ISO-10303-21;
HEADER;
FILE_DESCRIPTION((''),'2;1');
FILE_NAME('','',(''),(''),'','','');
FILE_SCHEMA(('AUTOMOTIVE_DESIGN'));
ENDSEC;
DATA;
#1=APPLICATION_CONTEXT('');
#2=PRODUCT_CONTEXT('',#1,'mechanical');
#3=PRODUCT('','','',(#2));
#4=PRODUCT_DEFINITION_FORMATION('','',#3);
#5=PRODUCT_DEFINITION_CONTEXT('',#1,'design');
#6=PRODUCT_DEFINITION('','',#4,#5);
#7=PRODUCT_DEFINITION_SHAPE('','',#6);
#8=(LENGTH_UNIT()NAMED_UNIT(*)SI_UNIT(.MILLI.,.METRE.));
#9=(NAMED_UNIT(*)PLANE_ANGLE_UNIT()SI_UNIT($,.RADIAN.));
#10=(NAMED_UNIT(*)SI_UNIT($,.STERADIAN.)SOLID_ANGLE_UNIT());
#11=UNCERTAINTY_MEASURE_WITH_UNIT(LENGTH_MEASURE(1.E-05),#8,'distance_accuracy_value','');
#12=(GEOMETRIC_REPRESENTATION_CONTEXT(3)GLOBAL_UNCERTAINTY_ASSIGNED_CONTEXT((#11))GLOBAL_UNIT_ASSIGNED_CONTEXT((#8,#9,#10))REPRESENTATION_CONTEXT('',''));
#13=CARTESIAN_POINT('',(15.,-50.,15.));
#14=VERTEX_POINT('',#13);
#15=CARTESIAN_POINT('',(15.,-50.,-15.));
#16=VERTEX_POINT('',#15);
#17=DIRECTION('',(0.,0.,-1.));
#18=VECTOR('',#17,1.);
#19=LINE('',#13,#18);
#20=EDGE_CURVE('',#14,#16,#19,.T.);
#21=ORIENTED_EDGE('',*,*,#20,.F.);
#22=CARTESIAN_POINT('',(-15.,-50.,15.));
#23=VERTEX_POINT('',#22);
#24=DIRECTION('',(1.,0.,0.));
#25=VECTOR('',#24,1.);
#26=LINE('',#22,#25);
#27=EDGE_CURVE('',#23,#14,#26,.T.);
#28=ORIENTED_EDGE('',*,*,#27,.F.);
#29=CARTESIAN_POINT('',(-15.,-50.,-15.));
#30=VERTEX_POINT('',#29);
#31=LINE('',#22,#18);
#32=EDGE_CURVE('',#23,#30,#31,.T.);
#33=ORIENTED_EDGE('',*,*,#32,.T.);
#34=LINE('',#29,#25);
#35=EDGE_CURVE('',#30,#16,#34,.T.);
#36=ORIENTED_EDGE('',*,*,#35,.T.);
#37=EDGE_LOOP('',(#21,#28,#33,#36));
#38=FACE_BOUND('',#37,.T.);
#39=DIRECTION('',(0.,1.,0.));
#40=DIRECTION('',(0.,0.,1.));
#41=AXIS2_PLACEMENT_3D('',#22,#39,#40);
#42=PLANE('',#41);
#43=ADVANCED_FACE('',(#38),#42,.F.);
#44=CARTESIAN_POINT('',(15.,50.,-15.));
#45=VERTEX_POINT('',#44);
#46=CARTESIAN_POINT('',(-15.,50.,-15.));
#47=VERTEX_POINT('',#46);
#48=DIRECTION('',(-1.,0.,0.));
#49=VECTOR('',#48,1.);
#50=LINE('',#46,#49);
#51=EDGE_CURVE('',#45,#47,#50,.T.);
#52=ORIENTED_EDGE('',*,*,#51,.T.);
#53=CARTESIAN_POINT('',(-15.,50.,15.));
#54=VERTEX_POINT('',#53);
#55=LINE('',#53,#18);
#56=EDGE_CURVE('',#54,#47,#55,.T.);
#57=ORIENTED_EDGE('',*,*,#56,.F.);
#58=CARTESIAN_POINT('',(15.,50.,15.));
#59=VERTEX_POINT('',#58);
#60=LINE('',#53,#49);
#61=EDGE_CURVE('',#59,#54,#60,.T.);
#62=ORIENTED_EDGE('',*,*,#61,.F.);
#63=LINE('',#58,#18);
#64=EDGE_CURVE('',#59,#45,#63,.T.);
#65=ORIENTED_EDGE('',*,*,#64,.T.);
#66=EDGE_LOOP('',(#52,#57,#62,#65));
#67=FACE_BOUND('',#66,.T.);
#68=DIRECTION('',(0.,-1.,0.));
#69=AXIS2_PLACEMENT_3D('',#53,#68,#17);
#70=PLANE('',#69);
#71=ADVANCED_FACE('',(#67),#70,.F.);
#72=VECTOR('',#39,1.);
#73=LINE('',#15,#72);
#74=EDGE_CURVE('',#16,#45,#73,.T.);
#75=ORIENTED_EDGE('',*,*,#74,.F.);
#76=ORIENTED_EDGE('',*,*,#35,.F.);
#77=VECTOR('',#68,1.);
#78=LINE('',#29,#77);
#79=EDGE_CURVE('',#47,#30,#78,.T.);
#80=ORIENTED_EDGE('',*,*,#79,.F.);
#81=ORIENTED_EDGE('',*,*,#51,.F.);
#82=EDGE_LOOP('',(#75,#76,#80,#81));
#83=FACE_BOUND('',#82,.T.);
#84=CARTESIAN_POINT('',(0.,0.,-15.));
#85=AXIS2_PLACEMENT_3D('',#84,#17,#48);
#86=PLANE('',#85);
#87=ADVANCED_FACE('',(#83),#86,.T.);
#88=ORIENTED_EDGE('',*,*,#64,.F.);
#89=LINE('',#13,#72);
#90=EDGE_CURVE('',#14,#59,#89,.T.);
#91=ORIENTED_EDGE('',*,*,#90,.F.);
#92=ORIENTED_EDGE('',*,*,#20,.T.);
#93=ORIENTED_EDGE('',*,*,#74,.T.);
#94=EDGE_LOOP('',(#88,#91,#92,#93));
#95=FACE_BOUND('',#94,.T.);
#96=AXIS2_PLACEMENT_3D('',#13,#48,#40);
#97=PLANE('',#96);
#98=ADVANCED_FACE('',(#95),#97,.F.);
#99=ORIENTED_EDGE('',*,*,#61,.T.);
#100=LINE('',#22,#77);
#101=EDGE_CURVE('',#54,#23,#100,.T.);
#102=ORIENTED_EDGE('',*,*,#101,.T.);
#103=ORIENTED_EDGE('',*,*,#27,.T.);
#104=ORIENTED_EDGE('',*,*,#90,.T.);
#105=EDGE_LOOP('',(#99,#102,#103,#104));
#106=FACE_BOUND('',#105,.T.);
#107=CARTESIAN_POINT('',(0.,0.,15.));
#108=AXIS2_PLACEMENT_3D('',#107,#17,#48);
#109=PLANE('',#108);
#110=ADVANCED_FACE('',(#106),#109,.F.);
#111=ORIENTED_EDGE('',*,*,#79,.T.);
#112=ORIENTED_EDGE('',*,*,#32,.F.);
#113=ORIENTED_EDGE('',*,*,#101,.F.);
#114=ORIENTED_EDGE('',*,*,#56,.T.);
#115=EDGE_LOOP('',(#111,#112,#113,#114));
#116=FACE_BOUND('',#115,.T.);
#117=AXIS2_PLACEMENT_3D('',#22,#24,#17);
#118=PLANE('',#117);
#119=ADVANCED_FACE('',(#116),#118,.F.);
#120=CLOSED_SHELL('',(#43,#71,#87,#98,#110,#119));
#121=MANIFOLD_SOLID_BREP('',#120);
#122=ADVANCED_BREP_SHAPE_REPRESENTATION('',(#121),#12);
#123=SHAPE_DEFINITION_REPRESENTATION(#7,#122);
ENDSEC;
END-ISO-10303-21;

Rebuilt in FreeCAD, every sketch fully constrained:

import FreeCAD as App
import Part
import Sketcher

V = App.Vector

doc = App.newDocument("Part")
body = doc.addObject("PartDesign::Body", "Body")

sketch1 = body.newObject("Sketcher::SketchObject", "Sketch")
sketch1.AttachmentSupport = (doc.getObject("XY_Plane"), [""])
sketch1.MapMode = "FlatFace"
sketch1.addGeometry([
    Part.LineSegment(V(-15, 50, 0), V(-15, -50, 0)),
    Part.LineSegment(V(-15, -50, 0), V(15, -50, 0)),
    Part.LineSegment(V(15, -50, 0), V(15, 50, 0)),
    Part.LineSegment(V(15, 50, 0), V(-15, 50, 0)),
], False)
sketch1.addConstraint([
    Sketcher.Constraint("Coincident", 0, 2, 1, 1),
    Sketcher.Constraint("Coincident", 1, 2, 2, 1),
    Sketcher.Constraint("Coincident", 2, 2, 3, 1),
    Sketcher.Constraint("Coincident", 3, 2, 0, 1),
    Sketcher.Constraint("Vertical", 0),
    Sketcher.Constraint("Horizontal", 1),
    Sketcher.Constraint("Vertical", 2),
    Sketcher.Constraint("Horizontal", 3),
    Sketcher.Constraint("Symmetric", 0, 2, 2, 2, -1, 1),
    Sketcher.Constraint("DistanceX", 1, 1, 1, 2, 30.0),
    Sketcher.Constraint("DistanceY", 0, 2, 0, 1, 100.0),
])
pad1 = body.newObject("PartDesign::Pad", "Pad")
pad1.Profile = sketch1
pad1.Length = 30
pad1.Midplane = True

doc.recompute()
